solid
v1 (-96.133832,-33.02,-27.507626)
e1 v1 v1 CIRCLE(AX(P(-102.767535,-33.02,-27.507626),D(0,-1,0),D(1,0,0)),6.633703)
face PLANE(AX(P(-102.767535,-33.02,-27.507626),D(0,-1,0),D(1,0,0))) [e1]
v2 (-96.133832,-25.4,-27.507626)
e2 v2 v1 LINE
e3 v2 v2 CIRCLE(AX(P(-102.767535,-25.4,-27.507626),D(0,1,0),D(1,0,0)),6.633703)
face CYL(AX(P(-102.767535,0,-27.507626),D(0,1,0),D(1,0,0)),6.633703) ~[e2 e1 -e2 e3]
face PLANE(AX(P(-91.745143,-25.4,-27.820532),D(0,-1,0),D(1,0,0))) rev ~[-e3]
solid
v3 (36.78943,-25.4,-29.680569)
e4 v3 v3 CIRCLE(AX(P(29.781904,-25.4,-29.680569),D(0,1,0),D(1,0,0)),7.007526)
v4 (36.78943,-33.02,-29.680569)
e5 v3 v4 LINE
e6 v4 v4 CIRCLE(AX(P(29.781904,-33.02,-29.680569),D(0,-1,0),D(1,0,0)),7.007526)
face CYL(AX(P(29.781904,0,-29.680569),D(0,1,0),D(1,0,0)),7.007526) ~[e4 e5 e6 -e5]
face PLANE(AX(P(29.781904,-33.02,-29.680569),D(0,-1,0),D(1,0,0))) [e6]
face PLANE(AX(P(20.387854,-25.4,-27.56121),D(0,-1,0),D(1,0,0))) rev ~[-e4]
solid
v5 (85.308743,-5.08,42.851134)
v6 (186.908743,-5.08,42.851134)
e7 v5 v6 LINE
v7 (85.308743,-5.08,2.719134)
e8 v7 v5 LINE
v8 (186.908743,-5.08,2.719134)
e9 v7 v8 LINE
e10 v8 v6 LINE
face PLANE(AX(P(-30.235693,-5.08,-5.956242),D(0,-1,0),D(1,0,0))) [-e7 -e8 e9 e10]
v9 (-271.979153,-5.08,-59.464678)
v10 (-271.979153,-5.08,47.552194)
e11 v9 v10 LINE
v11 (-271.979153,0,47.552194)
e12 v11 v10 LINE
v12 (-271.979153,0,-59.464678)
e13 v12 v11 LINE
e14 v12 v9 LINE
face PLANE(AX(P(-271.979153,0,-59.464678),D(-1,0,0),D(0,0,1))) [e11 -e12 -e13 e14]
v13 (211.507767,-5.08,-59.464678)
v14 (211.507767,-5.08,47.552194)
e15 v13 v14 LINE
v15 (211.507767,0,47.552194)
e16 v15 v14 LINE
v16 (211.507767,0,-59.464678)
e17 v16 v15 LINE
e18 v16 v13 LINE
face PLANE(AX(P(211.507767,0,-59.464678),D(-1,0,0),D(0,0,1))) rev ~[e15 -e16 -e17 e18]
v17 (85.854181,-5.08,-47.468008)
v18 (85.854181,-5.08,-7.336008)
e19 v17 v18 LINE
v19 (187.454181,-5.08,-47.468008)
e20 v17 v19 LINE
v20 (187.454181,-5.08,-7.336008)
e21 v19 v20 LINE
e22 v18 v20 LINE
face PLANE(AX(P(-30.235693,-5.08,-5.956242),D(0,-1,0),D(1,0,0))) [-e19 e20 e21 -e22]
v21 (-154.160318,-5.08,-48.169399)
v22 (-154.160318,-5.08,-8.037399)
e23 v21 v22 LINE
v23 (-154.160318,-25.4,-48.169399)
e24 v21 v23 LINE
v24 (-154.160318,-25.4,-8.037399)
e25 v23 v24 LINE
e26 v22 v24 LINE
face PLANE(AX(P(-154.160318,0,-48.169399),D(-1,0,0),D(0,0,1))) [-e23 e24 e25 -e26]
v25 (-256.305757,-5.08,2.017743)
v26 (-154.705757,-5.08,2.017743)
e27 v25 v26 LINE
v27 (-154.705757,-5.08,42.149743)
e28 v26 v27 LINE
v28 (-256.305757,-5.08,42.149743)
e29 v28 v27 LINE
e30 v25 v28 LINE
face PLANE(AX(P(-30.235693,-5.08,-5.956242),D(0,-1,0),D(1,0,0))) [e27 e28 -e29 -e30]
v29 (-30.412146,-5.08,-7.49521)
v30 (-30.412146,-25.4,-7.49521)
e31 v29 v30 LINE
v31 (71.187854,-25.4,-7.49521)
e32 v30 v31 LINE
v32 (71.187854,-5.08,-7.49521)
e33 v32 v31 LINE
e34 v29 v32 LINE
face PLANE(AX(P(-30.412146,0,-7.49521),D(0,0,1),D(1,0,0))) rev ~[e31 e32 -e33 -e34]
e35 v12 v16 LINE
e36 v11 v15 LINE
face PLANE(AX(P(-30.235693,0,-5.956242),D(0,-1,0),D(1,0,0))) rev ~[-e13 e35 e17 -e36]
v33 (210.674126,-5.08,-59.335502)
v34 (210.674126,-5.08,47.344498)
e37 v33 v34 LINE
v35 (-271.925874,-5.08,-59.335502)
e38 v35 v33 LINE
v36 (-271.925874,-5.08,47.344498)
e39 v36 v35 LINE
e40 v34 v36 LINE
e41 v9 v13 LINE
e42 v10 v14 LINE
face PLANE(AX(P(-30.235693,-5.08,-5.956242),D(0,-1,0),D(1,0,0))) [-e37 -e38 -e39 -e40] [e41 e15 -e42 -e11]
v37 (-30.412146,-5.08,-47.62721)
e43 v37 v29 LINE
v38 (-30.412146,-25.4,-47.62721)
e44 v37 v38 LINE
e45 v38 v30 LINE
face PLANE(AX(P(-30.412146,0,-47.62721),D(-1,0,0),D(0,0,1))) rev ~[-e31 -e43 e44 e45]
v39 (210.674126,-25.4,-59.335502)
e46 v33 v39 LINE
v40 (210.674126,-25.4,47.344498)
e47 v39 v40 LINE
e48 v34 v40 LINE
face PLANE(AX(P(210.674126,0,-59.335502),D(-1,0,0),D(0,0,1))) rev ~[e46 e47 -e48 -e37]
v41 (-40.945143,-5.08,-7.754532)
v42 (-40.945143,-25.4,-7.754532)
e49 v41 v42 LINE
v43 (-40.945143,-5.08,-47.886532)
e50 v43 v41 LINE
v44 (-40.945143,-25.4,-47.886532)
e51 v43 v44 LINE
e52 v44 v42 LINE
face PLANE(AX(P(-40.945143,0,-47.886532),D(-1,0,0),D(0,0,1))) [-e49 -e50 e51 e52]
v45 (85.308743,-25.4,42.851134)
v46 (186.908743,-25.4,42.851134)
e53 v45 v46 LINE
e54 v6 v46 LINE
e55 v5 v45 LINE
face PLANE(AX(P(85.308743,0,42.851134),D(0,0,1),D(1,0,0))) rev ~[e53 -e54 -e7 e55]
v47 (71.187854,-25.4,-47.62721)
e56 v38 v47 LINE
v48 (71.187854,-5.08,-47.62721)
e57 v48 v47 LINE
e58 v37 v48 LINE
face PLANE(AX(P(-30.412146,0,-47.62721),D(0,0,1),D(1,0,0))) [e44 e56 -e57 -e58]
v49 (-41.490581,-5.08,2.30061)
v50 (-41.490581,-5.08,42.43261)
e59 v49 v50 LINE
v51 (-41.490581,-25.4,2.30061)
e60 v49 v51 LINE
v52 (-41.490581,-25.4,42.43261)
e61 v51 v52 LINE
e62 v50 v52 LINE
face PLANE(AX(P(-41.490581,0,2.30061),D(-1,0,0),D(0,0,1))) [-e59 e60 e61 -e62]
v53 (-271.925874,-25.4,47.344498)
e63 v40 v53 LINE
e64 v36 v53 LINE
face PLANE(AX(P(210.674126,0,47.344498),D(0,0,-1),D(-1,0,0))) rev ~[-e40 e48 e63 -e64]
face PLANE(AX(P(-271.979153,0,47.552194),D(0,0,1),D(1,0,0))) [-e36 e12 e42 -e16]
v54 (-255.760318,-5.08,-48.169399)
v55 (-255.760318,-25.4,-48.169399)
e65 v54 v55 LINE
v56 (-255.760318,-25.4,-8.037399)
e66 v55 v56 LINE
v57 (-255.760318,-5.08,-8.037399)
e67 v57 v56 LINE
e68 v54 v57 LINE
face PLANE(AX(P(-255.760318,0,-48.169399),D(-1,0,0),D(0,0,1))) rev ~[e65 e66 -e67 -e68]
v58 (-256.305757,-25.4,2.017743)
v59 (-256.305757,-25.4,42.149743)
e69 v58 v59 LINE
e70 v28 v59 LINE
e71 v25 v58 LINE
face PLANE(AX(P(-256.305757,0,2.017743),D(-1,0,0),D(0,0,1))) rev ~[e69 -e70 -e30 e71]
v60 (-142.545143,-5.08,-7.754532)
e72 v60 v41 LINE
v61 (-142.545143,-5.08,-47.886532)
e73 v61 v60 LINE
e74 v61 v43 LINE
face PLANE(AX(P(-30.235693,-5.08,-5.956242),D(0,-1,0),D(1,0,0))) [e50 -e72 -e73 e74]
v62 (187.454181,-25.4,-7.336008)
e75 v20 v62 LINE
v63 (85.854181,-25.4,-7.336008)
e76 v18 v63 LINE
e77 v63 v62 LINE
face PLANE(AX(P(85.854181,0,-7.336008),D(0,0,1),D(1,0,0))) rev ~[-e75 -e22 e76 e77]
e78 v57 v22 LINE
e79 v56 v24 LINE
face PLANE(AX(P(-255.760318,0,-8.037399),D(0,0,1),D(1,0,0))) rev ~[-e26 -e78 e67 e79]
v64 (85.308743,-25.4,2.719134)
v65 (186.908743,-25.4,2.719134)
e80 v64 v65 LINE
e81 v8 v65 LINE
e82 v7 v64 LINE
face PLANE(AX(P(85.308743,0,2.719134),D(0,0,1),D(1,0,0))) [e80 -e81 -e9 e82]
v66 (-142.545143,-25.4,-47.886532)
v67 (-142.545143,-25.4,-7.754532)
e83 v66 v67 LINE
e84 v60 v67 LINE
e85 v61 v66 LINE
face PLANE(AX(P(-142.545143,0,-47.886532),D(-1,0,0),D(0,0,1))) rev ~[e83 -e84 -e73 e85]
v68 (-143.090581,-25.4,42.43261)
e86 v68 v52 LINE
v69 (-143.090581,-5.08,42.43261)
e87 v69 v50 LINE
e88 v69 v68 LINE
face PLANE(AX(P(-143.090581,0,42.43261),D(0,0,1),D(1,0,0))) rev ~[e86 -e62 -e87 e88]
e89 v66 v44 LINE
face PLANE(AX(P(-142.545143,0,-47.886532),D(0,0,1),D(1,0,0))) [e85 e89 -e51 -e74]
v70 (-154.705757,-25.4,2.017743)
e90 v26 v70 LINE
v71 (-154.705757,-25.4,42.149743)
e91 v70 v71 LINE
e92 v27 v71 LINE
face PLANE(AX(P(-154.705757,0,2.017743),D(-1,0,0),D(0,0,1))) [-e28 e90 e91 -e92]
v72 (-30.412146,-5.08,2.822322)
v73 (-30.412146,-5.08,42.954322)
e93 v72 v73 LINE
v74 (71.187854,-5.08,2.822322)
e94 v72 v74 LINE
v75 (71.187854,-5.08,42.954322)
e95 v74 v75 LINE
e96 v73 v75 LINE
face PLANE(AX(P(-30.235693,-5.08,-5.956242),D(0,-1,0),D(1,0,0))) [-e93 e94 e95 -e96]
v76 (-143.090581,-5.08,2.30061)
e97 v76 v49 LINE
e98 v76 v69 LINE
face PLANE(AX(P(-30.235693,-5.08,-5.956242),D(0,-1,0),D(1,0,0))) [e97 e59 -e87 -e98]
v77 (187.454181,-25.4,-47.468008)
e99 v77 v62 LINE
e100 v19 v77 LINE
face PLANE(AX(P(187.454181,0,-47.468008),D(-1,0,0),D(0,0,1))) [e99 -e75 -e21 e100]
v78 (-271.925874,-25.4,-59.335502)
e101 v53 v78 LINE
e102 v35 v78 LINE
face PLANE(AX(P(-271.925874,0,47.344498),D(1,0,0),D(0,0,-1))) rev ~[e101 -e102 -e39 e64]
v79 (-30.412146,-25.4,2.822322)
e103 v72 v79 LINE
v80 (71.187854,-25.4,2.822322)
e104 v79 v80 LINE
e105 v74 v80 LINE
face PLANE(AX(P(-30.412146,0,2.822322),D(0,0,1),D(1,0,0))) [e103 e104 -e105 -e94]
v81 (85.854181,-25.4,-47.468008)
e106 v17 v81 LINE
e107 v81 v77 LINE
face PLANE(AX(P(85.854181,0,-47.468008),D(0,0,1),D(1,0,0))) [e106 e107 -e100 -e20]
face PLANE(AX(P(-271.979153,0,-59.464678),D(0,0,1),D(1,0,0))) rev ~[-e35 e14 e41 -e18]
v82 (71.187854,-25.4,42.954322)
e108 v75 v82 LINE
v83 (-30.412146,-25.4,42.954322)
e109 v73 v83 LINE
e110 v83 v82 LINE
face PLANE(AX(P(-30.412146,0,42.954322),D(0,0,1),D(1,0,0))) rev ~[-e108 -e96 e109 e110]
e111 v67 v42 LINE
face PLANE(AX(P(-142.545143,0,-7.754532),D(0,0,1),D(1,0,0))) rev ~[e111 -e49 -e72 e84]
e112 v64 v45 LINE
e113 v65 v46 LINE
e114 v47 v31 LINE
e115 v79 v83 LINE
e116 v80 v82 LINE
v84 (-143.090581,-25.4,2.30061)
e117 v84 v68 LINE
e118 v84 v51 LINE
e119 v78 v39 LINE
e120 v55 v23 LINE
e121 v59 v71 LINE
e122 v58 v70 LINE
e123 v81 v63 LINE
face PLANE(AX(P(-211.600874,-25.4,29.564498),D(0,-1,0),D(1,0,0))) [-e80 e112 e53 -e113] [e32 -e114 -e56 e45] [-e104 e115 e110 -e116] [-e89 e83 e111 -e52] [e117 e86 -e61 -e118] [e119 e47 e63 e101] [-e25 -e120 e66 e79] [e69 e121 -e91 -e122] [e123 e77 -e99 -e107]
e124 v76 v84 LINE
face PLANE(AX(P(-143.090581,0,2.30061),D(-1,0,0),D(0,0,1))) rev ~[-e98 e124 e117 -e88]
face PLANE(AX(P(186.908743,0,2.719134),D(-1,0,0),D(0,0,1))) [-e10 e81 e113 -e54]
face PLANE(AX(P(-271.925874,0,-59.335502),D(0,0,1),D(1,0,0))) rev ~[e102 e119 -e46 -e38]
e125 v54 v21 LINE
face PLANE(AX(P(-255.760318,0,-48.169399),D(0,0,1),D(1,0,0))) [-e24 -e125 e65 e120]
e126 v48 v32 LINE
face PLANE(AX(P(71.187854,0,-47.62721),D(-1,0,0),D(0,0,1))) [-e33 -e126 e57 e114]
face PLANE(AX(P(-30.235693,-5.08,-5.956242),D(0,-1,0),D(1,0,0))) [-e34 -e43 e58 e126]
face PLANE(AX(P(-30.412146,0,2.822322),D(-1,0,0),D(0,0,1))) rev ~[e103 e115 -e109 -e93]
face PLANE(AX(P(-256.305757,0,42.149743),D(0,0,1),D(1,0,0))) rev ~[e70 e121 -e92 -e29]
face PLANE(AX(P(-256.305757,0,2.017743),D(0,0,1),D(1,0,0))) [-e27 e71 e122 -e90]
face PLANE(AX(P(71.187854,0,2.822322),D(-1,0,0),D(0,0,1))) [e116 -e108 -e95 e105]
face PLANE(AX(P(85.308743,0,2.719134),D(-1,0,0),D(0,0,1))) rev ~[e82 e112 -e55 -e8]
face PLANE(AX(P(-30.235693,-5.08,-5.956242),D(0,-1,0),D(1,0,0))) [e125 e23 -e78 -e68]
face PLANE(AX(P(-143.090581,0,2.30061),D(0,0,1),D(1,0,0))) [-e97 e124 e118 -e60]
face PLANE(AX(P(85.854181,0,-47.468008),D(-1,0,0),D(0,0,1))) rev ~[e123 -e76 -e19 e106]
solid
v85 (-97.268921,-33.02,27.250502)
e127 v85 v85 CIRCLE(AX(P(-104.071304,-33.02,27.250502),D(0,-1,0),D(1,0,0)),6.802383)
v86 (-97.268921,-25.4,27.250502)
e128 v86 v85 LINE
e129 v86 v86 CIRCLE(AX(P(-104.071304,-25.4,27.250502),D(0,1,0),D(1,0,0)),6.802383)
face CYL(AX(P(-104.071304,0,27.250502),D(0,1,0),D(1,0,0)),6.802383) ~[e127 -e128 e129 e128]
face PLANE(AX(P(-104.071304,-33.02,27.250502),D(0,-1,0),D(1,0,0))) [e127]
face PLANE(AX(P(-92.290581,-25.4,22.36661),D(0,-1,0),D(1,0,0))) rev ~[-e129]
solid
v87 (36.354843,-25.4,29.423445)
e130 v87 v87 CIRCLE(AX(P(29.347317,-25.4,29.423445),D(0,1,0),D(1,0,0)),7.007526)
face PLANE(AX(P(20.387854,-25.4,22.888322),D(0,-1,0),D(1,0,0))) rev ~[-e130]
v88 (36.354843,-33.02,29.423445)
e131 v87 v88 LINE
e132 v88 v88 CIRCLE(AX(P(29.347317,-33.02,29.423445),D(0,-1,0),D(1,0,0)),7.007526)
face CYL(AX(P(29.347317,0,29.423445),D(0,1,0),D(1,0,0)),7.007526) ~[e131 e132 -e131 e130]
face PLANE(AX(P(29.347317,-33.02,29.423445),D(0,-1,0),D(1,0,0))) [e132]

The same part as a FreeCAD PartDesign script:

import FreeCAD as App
import Part
import Sketcher
Q = App.Units.Quantity


def add_polygon(sketch, points):
    """Adds a closed chain of lines whose ends are joined by coincident constraints."""
    first, n = sketch.GeometryCount, len(points)
    for a, b in zip(points, points[1:] + points[:1]):
        sketch.addGeometry(Part.LineSegment(App.Vector(*a, 0), App.Vector(*b, 0)), False)
    for i in range(n):
        sketch.addConstraint(Sketcher.Constraint("Coincident", first + i, 2, first + (i + 1) % n, 1))

doc = App.newDocument("Part")
body = doc.addObject("PartDesign::Body", "Body")

# Sketch on XZ plane
sketch1 = doc.addObject("Sketcher::SketchObject", "Sketch")
body.addObject(sketch1)
sketch1.AttachmentSupport = (doc.XZ_Plane, [""])
sketch1.MapMode = "FlatFace"
add_polygon(sketch1, [(-272, 47), (-272, -59), (211, -59), (211, 47)])  # lines 0-3
sketch1.addConstraint([
    Sketcher.Constraint("Vertical", 0),
    Sketcher.Constraint("Horizontal", 1),
    Sketcher.Constraint("Vertical", 2),
    Sketcher.Constraint("Horizontal", 3),
    Sketcher.Constraint("DistanceX", 1, 1, 1, 2, Q("19 in")),
    Sketcher.Constraint("DistanceY", 0, 2, 0, 1, Q("4.2 in")),
    Sketcher.Constraint("DistanceX", 0, 2, -1, 1, Q("271.925874 mm")),
    Sketcher.Constraint("DistanceY", 0, 2, -1, 1, Q("59.335502 mm")),
])
pad1 = doc.addObject("PartDesign::Pad", "Pad")
body.addObject(pad1)
pad1.Profile = sketch1
pad1.Length = Q("1 in")

# Sketch on XZ plane
sketch2 = doc.addObject("Sketcher::SketchObject", "Sketch001")
body.addObject(sketch2)
sketch2.AttachmentSupport = (doc.XZ_Plane, [""])
sketch2.MapMode = "FlatFace"
sketch2.addGeometry([
    Part.Circle(App.Vector(-104, 27, 0), App.Vector(0, 0, 1), 13),
    Part.Circle(App.Vector(-103, -28, 0), App.Vector(0, 0, 1), 13),
    Part.Circle(App.Vector(29, 29, 0), App.Vector(0, 0, 1), 13),
    Part.Circle(App.Vector(29, -30, 0), App.Vector(0, 0, 1), 13),
], False)
sketch2.addConstraint([
    Sketcher.Constraint("Equal", 0, 1),
    Sketcher.Constraint("Equal", 1, 2),
    Sketcher.Constraint("Equal", 2, 3),
    Sketcher.Constraint("Vertical", 2, 3, 3, 3),
    Sketcher.Constraint("Diameter", 0, Q("1 in")),
    Sketcher.Constraint("DistanceX", 0, 3, -1, 1, Q("103.636712 mm")),
    Sketcher.Constraint("DistanceX", 1, 3, -1, 1, Q("103.202119 mm")),
    Sketcher.Constraint("DistanceX", -1, 1, 2, 3, Q("28.912731 mm")),
    Sketcher.Constraint("DistanceY", 1, 3, 0, 3, Q("54.323539 mm")),
    Sketcher.Constraint("DistanceY", 0, 3, 2, 3, Q("2.60753 mm")),
    Sketcher.Constraint("DistanceY", -1, 1, 0, 3, Q("26.626937 mm")),
    Sketcher.Constraint("DistanceY", 3, 3, -1, 1, Q("29.869545 mm")),
])
doc.recompute()
hole = doc.addObject("PartDesign::Hole", "Hole")
body.addObject(hole)
hole.Profile = sketch2
hole.ThreadType = "None"
hole.Diameter = Q("1 in")
hole.DepthType = "ThroughAll"
hole.Reversed = True
body2 = doc.addObject("PartDesign::Body", "Body001")

# Sketch on XZ plane
sketch3 = doc.addObject("Sketcher::SketchObject", "Sketch002")
body2.addObject(sketch3)
sketch3.AttachmentSupport = (doc.getObject("XZ_Plane001"), [""])
sketch3.MapMode = "FlatFace"
sketch3.addGeometry(Part.Circle(App.Vector(-104, 27, 0), App.Vector(0, 0, 1), 7), False)
sketch3.addConstraint([
    Sketcher.Constraint("Diameter", 0, Q("13.604766 mm")),
    Sketcher.Constraint("DistanceX", 0, 3, -1, 1, Q("104.071304 mm")),
    Sketcher.Constraint("DistanceY", -1, 1, 0, 3, Q("27.250502 mm")),
])
pad2 = doc.addObject("PartDesign::Pad", "Pad001")
body2.addObject(pad2)
pad2.Profile = sketch3
pad2.Length = Q("1.3 in")
body3 = doc.addObject("PartDesign::Body", "Body002")

# Sketch on XZ plane
sketch4 = doc.addObject("Sketcher::SketchObject", "Sketch003")
body3.addObject(sketch4)
sketch4.AttachmentSupport = (doc.getObject("XZ_Plane002"), [""])
sketch4.MapMode = "FlatFace"
sketch4.addGeometry(Part.Circle(App.Vector(-103, -28, 0), App.Vector(0, 0, 1), 7), False)
sketch4.addConstraint([
    Sketcher.Constraint("Diameter", 0, Q("13.267405 mm")),
    Sketcher.Constraint("DistanceX", 0, 3, -1, 1, Q("102.767535 mm")),
    Sketcher.Constraint("DistanceY", 0, 3, -1, 1, Q("27.507626 mm")),
])
pad3 = doc.addObject("PartDesign::Pad", "Pad002")
body3.addObject(pad3)
pad3.Profile = sketch4
pad3.Length = Q("1.3 in")
body4 = doc.addObject("PartDesign::Body", "Body003")

# Sketch on XZ plane
sketch5 = doc.addObject("Sketcher::SketchObject", "Sketch004")
body4.addObject(sketch5)
sketch5.AttachmentSupport = (doc.getObject("XZ_Plane003"), [""])
sketch5.MapMode = "FlatFace"
sketch5.addGeometry(Part.Circle(App.Vector(29, 29, 0), App.Vector(0, 0, 1), 7), False)
sketch5.addConstraint([
    Sketcher.Constraint("Diameter", 0, Q("14.015051 mm")),
    Sketcher.Constraint("DistanceX", -1, 1, 0, 3, Q("29.347317 mm")),
    Sketcher.Constraint("DistanceY", -1, 1, 0, 3, Q("29.423445 mm")),
])
pad4 = doc.addObject("PartDesign::Pad", "Pad003")
body4.addObject(pad4)
pad4.Profile = sketch5
pad4.Length = Q("1.3 in")
body5 = doc.addObject("PartDesign::Body", "Body004")

# Sketch on XZ plane
sketch6 = doc.addObject("Sketcher::SketchObject", "Sketch005")
body5.addObject(sketch6)
sketch6.AttachmentSupport = (doc.getObject("XZ_Plane004"), [""])
sketch6.MapMode = "FlatFace"
sketch6.addGeometry(Part.Circle(App.Vector(30, -30, 0), App.Vector(0, 0, 1), 7), False)
sketch6.addConstraint([
    Sketcher.Constraint("Diameter", 0, Q("14.015053 mm")),
    Sketcher.Constraint("DistanceY", 0, 3, -1, 1, Q("29.680569 mm")),
    Sketcher.Constraint("DistanceX", -1, 1, 0, 3, Q("29.781904 mm")),
])
pad5 = doc.addObject("PartDesign::Pad", "Pad004")
body5.addObject(pad5)
pad5.Profile = sketch6
pad5.Length = Q("1.3 in")
body6 = doc.addObject("PartDesign::Body", "Body005")
body6.AllowCompound = True

# Sketch on XZ plane
sketch7 = doc.addObject("Sketcher::SketchObject", "Sketch006")
body6.addObject(sketch7)
sketch7.AttachmentSupport = (doc.getObject("XZ_Plane005"), [""])
sketch7.MapMode = "FlatFace"
add_polygon(sketch7, [(-143, 42), (-143, 2), (-41, 2), (-41, 42)])  # lines 0-3
add_polygon(sketch7, [(-143, -8), (-143, -48), (-41, -48), (-41, -8)])  # lines 4-7
add_polygon(sketch7, [(-30, 43), (-30, 3), (71, 3), (71, 43)])  # lines 8-11
add_polygon(sketch7, [(-30, -7), (-30, -48), (71, -48), (71, -7)])  # lines 12-15
add_polygon(sketch7, [(85, 43), (85, 3), (187, 3), (187, 43)])  # lines 16-19
add_polygon(sketch7, [(86, -7), (86, -47), (187, -47), (187, -7)])  # lines 20-23
add_polygon(sketch7, [(-256, 42), (-256, 2), (-155, 2), (-155, 42)])  # lines 24-27
add_polygon(sketch7, [(-256, -8), (-256, -48), (-154, -48), (-154, -8)])  # lines 28-31
sketch7.addConstraint([
    Sketcher.Constraint("Vertical", 0),
    Sketcher.Constraint("Horizontal", 1),
    Sketcher.Constraint("Vertical", 2),
    Sketcher.Constraint("Horizontal", 3),
    Sketcher.Constraint("Vertical", 4),
    Sketcher.Constraint("Horizontal", 5),
    Sketcher.Constraint("Vertical", 6),
    Sketcher.Constraint("Horizontal", 7),
    Sketcher.Constraint("Vertical", 8),
    Sketcher.Constraint("Horizontal", 9),
    Sketcher.Constraint("Vertical", 10),
    Sketcher.Constraint("Horizontal", 11),
    Sketcher.Constraint("Vertical", 12),
    Sketcher.Constraint("Horizontal", 13),
    Sketcher.Constraint("Vertical", 14),
    Sketcher.Constraint("Horizontal", 15),
    Sketcher.Constraint("Vertical", 16),
    Sketcher.Constraint("Horizontal", 17),
    Sketcher.Constraint("Vertical", 18),
    Sketcher.Constraint("Horizontal", 19),
    Sketcher.Constraint("Vertical", 20),
    Sketcher.Constraint("Horizontal", 21),
    Sketcher.Constraint("Vertical", 22),
    Sketcher.Constraint("Horizontal", 23),
    Sketcher.Constraint("Vertical", 24),
    Sketcher.Constraint("Horizontal", 25),
    Sketcher.Constraint("Vertical", 26),
    Sketcher.Constraint("Horizontal", 27),
    Sketcher.Constraint("Vertical", 28),
    Sketcher.Constraint("Horizontal", 29),
    Sketcher.Constraint("Vertical", 30),
    Sketcher.Constraint("Horizontal", 31),
    Sketcher.Constraint("Vertical", 11, 2, 12, 2),
    Sketcher.Constraint("Vertical", 10, 2, 13, 2),
    Sketcher.Constraint("Equal", 3, 5),
    Sketcher.Constraint("Equal", 7, 9),
    Sketcher.Constraint("Equal", 15, 17),
    Sketcher.Constraint("Equal", 19, 21),
    Sketcher.Constraint("Equal", 23, 25),
    Sketcher.Constraint("Equal", 27, 29),
    Sketcher.Constraint("Equal", 2, 4),
    Sketcher.Constraint("Equal", 6, 8),
    Sketcher.Constraint("Equal", 10, 12),
    Sketcher.Constraint("Equal", 14, 16),
    Sketcher.Constraint("Equal", 18, 20),
    Sketcher.Constraint("Equal", 22, 24),
    Sketcher.Constraint("Equal", 26, 28),
    Sketcher.Constraint("DistanceX", 1, 1, 1, 2, Q("4 in")),
    Sketcher.Constraint("DistanceY", 0, 2, 0, 1, Q("1.58 in")),
    Sketcher.Constraint("DistanceY", 28, 2, -1, 1, Q("48.169399 mm")),
    Sketcher.Constraint("DistanceX", 0, 2, -1, 1, Q("143.090581 mm")),
    Sketcher.Constraint("DistanceY", -1, 1, 0, 2, Q("2.30061 mm")),
    Sketcher.Constraint("DistanceY", 4, 2, -1, 1, Q("47.886532 mm")),
    Sketcher.Constraint("DistanceY", -1, 1, 8, 2, Q("2.822322 mm")),
    Sketcher.Constraint("DistanceY", 12, 2, -1, 1, Q("47.62721 mm")),
    Sketcher.Constraint("DistanceX", -1, 1, 20, 2, Q("85.854181 mm")),
    Sketcher.Constraint("DistanceX", 28, 2, -1, 1, Q("255.760318 mm")),
    Sketcher.Constraint("DistanceX", 0, 2, 4, 2, Q("0.545438 mm")),
    Sketcher.Constraint("DistanceX", 9, 2, 16, 2, Q("14.120889 mm")),
    Sketcher.Constraint("DistanceX", 16, 2, 20, 2, Q("0.545438 mm")),
    Sketcher.Constraint("DistanceY", 20, 2, 16, 2, Q("50.187142 mm")),
    Sketcher.Constraint("DistanceY", 20, 2, 9, 2, Q("50.290329 mm")),
    Sketcher.Constraint("DistanceX", 24, 2, 28, 2, Q("0.545438 mm")),
    Sketcher.Constraint("DistanceY", 28, 2, 24, 2, Q("50.187142 mm")),
])
pad6 = doc.addObject("PartDesign::Pad", "Pad005")
body6.addObject(pad6)
pad6.Profile = sketch7
pad6.Length = Q("1 in")
doc.recompute()

body7 = doc.addObject("PartDesign::Body", "Body006")
body7.BaseFeature = body6
boolean = doc.addObject("PartDesign::Boolean", "Boolean")
body.addObject(boolean)
boolean.Type = "Cut"
boolean.addObjects([body7])
doc.recompute()

# Sketch on XZ plane
sketch8 = doc.addObject("Sketcher::SketchObject", "Sketch007")
body.addObject(sketch8)
sketch8.AttachmentSupport = (doc.XZ_Plane, [""])
sketch8.MapMode = "FlatFace"
add_polygon(sketch8, [(-272, 48), (-272, -59), (212, -59), (212, 48)])  # lines 0-3
sketch8.addConstraint([
    Sketcher.Constraint("Vertical", 0),
    Sketcher.Constraint("Horizontal", 1),
    Sketcher.Constraint("Vertical", 2),
    Sketcher.Constraint("Horizontal", 3),
    Sketcher.Constraint("DistanceX", 1, 1, 1, 2, Q("483.486921 mm")),
    Sketcher.Constraint("DistanceY", 0, 2, 0, 1, Q("107.016873 mm")),
    Sketcher.Constraint("DistanceY", 0, 2, -1, 1, Q("59.464678 mm")),
    Sketcher.Constraint("DistanceX", 0, 2, -1, 1, Q("271.979153 mm")),
])
pad7 = doc.addObject("PartDesign::Pad", "Pad006")
body.addObject(pad7)
pad7.Profile = sketch8
pad7.Length = Q("0.2 in")
doc.recompute()

body8 = doc.addObject("PartDesign::Body", "Body007")
body8.BaseFeature = body6
boolean2 = doc.addObject("PartDesign::Boolean", "Boolean001")
body2.addObject(boolean2)
boolean2.Type = "Cut"
boolean2.addObjects([body8])
doc.recompute()

body9 = doc.addObject("PartDesign::Body", "Body008")
body9.BaseFeature = body6
boolean3 = doc.addObject("PartDesign::Boolean", "Boolean002")
body3.addObject(boolean3)
boolean3.Type = "Cut"
boolean3.addObjects([body9])
doc.recompute()

body10 = doc.addObject("PartDesign::Body", "Body009")
body10.BaseFeature = body6
boolean4 = doc.addObject("PartDesign::Boolean", "Boolean003")
body4.addObject(boolean4)
boolean4.Type = "Cut"
boolean4.addObjects([body10])
doc.recompute()

boolean5 = doc.addObject("PartDesign::Boolean", "Boolean004")
body5.addObject(boolean5)
boolean5.Type = "Cut"
boolean5.addObjects([body6])

doc.recompute()
